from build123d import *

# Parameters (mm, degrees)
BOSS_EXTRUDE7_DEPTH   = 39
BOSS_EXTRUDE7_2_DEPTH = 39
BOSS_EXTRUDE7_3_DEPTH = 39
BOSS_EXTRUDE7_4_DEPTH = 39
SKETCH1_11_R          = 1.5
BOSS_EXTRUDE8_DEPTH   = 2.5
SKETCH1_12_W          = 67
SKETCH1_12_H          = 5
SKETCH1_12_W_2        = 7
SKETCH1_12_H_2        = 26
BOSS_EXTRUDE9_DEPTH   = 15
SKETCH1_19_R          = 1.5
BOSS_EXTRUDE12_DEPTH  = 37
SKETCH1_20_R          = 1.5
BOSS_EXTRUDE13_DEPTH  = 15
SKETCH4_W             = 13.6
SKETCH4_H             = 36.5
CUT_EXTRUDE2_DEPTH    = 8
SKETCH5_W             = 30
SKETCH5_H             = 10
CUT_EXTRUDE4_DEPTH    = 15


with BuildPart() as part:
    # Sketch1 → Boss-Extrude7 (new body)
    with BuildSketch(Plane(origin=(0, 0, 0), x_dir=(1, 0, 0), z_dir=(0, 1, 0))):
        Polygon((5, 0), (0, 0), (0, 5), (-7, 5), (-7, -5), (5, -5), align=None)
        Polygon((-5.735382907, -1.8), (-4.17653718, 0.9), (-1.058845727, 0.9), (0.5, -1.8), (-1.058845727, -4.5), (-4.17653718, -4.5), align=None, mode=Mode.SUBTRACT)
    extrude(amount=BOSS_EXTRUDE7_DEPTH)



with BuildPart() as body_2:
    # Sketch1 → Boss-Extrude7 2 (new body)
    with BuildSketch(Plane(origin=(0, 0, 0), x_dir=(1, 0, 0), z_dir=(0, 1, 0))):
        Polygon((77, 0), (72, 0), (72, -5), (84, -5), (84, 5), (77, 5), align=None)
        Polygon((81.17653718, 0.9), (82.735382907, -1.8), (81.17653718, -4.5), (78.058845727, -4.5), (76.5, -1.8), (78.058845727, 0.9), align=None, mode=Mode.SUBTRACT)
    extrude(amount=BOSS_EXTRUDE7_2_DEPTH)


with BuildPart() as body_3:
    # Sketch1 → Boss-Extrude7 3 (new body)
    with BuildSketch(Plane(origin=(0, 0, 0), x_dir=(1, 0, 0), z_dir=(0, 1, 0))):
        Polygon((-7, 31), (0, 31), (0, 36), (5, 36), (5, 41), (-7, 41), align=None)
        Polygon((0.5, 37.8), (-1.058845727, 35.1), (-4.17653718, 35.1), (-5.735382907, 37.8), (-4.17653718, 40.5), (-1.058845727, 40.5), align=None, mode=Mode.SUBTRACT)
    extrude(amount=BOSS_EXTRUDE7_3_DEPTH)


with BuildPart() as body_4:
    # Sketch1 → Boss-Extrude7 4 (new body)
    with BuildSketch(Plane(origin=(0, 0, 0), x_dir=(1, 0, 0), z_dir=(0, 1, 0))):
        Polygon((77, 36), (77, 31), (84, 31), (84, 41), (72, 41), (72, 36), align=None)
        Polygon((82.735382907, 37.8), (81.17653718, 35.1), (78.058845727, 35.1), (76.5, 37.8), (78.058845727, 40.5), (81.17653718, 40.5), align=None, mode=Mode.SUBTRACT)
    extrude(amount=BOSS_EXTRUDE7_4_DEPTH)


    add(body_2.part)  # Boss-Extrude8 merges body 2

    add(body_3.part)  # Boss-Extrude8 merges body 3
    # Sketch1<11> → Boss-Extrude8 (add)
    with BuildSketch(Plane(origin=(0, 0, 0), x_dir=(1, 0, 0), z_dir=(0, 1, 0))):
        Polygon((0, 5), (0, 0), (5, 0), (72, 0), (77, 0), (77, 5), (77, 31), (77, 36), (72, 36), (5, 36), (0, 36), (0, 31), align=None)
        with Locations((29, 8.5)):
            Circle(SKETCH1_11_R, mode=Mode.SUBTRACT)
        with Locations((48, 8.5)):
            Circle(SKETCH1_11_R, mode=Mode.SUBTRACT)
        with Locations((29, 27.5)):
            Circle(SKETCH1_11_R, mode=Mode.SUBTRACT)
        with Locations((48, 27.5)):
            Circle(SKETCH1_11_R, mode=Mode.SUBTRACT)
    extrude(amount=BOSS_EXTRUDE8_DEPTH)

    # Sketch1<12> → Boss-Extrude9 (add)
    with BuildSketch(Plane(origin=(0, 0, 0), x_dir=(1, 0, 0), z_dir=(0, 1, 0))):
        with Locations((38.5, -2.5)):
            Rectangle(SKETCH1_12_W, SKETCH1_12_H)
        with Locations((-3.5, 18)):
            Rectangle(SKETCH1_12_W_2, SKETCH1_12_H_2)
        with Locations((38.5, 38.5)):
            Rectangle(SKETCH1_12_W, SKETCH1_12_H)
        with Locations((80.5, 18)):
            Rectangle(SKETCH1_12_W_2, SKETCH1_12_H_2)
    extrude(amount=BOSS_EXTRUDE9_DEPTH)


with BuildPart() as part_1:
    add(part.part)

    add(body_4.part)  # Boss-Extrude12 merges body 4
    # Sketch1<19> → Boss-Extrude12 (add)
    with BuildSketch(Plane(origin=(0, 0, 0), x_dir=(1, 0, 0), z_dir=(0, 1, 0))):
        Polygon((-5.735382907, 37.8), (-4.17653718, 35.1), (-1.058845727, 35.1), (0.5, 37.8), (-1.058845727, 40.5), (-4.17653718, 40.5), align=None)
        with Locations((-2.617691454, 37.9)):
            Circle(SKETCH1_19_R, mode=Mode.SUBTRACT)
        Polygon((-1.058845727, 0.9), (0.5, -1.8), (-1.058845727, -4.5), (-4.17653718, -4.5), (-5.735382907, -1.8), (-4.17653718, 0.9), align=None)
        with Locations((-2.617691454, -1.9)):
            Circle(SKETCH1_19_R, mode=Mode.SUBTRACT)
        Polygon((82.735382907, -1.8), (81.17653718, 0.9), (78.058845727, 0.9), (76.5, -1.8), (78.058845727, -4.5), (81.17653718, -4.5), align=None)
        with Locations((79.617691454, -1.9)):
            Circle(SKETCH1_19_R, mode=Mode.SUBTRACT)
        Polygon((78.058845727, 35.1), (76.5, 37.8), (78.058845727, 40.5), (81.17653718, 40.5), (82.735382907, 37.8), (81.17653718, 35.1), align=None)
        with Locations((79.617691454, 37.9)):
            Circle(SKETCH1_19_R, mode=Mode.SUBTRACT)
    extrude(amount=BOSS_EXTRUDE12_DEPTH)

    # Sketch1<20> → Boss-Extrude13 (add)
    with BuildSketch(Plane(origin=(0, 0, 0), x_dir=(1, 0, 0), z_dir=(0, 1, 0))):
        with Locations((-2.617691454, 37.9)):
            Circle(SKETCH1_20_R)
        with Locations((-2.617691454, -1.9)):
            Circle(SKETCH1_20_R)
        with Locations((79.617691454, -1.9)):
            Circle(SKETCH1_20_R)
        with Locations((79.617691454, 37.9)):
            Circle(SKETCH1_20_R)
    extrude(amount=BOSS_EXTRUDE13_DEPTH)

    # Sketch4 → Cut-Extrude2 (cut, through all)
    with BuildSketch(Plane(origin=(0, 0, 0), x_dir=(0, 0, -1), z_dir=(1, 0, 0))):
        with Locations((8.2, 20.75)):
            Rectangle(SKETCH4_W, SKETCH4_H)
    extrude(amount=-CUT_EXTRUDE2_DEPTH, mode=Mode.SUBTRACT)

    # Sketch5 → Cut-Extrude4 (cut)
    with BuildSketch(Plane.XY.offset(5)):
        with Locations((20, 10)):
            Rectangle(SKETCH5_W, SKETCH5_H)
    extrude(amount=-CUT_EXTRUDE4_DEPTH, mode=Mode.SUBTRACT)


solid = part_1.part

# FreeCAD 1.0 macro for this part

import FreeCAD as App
import Part
import Sketcher
Q = App.Units.Quantity


def add_polygon(sketch, points):
    """Adds a closed chain of lines whose ends are joined by coincident constraints."""
    first, n = sketch.GeometryCount, len(points)
    for a, b in zip(points, points[1:] + points[:1]):
        sketch.addGeometry(Part.LineSegment(App.Vector(*a, 0), App.Vector(*b, 0)), False)
    for i in range(n):
        sketch.addConstraint(Sketcher.Constraint("Coincident", first + i, 2, first + (i + 1) % n, 1))

doc = App.newDocument("Part")
body = doc.addObject("PartDesign::Body", "Body")

sketch1 = doc.addObject("Sketcher::SketchObject", "Sketch")
body.addObject(sketch1)
sketch1.AttachmentSupport = (doc.XZ_Plane, [""])
sketch1.MapMode = "FlatFace"
add_polygon(sketch1, [(5, 0), (0, 0), (0, -5), (-7, -5), (-7, 5), (5, 5)])
add_polygon(sketch1, [(-4.2, 4.5), (-5.7, 1.8), (-4.2, -0.9), (-1.1, -0.9), (0.5, 1.8), (-1.1, 4.5)])
sketch1.addConstraint([
    Sketcher.Constraint("Horizontal", 0),
    Sketcher.Constraint("Vertical", 1),
    Sketcher.Constraint("Horizontal", 2),
    Sketcher.Constraint("Vertical", 3),
    Sketcher.Constraint("Horizontal", 4),
    Sketcher.Constraint("Vertical", 5),
    Sketcher.Constraint("Horizontal", 8),
    Sketcher.Constraint("Horizontal", 11),
    Sketcher.Constraint("Coincident", 0, 2, -1, 1),
    Sketcher.Constraint("Parallel", 6, 9),
    Sketcher.Constraint("Parallel", 7, 10),
    Sketcher.Constraint("Horizontal", 6, 2, 9, 2),
    Sketcher.Constraint("Vertical", 8, 2, 10, 2),
    Sketcher.Constraint("Vertical", 7, 2, 11, 2),
    Sketcher.Constraint("Equal", 0, 1),
    Sketcher.Constraint("Equal", 1, 5),
    Sketcher.Constraint("DistanceX", 0, 2, 0, 1, Q("5 mm")),
    Sketcher.Constraint("DistanceX", 2, 2, 2, 1, Q("7 mm")),
    Sketcher.Constraint("Angle", 6, Q("-120 deg")),
    Sketcher.Constraint("DistanceY", -1, 1, 6, 2, Q("1.8 mm")),
    Sketcher.Constraint("DistanceY", 7, 2, -1, 1, Q("0.9 mm")),
    Sketcher.Constraint("DistanceX", -1, 1, 9, 2, Q("0.5 mm")),
    Sketcher.Constraint("DistanceX", 8, 1, 8, 2, Q("3.117691 mm")),
])
pad1 = doc.addObject("PartDesign::Pad", "Pad")
body.addObject(pad1)
pad1.Profile = sketch1
pad1.Length = 39
pad1.Reversed = True
body2 = doc.addObject("PartDesign::Body", "Body001")

sketch2 = doc.addObject("Sketcher::SketchObject", "Sketch001")
body2.addObject(sketch2)
sketch2.AttachmentSupport = (doc.getObject("XZ_Plane001"), [""])
sketch2.MapMode = "FlatFace"
add_polygon(sketch2, [(77, 0), (72, 0), (72, 5), (84, 5), (84, -5), (77, -5)])
add_polygon(sketch2, [(78.1, -0.9), (81.2, -0.9), (82.7, 1.8), (81.2, 4.5), (78.1, 4.5), (76.5, 1.8)])
sketch2.addConstraint([
    Sketcher.Constraint("Horizontal", 0),
    Sketcher.Constraint("Vertical", 1),
    Sketcher.Constraint("Horizontal", 2),
    Sketcher.Constraint("Vertical", 3),
    Sketcher.Constraint("Horizontal", 4),
    Sketcher.Constraint("Vertical", 5),
    Sketcher.Constraint("Horizontal", 6),
    Sketcher.Constraint("Horizontal", 9),
    Sketcher.Constraint("PointOnObject", 0, 2, -1),
    Sketcher.Constraint("Parallel", 7, 10),
    Sketcher.Constraint("Parallel", 8, 11),
    Sketcher.Constraint("Horizontal", 7, 2, 10, 2),
    Sketcher.Constraint("Vertical", 6, 2, 8, 2),
    Sketcher.Constraint("Vertical", 9, 2, 11, 2),
    Sketcher.Constraint("Equal", 0, 1),
    Sketcher.Constraint("Equal", 1, 5),
    Sketcher.Constraint("DistanceX", 0, 2, 0, 1, Q("5 mm")),
    Sketcher.Constraint("DistanceX", 2, 1, 2, 2, Q("12 mm")),
    Sketcher.Constraint("Angle", 7, Q("60 deg")),
    Sketcher.Constraint("DistanceX", -1, 1, 0, 2, Q("72 mm")),
    Sketcher.Constraint("DistanceY", 6, 2, -1, 1, Q("0.9 mm")),
    Sketcher.Constraint("DistanceY", -1, 1, 7, 2, Q("1.8 mm")),
    Sketcher.Constraint("DistanceX", -1, 1, 10, 2, Q("76.5 mm")),
    Sketcher.Constraint("DistanceX", 6, 1, 6, 2, Q("3.117691 mm")),
])
pad2 = doc.addObject("PartDesign::Pad", "Pad001")
body2.addObject(pad2)
pad2.Profile = sketch2
pad2.Length = 39
pad2.Reversed = True
body3 = doc.addObject("PartDesign::Body", "Body002")

sketch3 = doc.addObject("Sketcher::SketchObject", "Sketch002")
body3.addObject(sketch3)
sketch3.AttachmentSupport = (doc.getObject("XZ_Plane002"), [""])
sketch3.MapMode = "FlatFace"
add_polygon(sketch3, [(-7, -31), (0, -31), (0, -36), (5, -36), (5, -41), (-7, -41)])
add_polygon(sketch3, [(-1.1, -40.5), (0.5, -37.8), (-1.1, -35.1), (-4.2, -35.1), (-5.7, -37.8), (-4.2, -40.5)])
sketch3.addConstraint([
    Sketcher.Constraint("Horizontal", 0),
    Sketcher.Constraint("Vertical", 1),
    Sketcher.Constraint("Horizontal", 2),
    Sketcher.Constraint("Vertical", 3),
    Sketcher.Constraint("Horizontal", 4),
    Sketcher.Constraint("Vertical", 5),
    Sketcher.Constraint("Horizontal", 8),
    Sketcher.Constraint("Horizontal", 11),
    Sketcher.Constraint("PointOnObject", 0, 2, -2),
    Sketcher.Constraint("Parallel", 6, 9),
    Sketcher.Constraint("Parallel", 7, 10),
    Sketcher.Constraint("Horizontal", 6, 2, 9, 2),
    Sketcher.Constraint("Vertical", 8, 2, 10, 2),
    Sketcher.Constraint("Vertical", 7, 2, 11, 2),
    Sketcher.Constraint("Equal", 2, 1),
    Sketcher.Constraint("Equal", 1, 3),
    Sketcher.Constraint("DistanceX", 0, 1, 0, 2, Q("7 mm")),
    Sketcher.Constraint("DistanceX", 2, 1, 2, 2, Q("5 mm")),
    Sketcher.Constraint("Angle", 6, Q("60 deg")),
    Sketcher.Constraint("DistanceY", 0, 2, -1, 1, Q("31 mm")),
    Sketcher.Constraint("DistanceX", -1, 1, 6, 2, Q("0.5 mm")),
    Sketcher.Constraint("DistanceY", 6, 2, -1, 1, Q("37.8 mm")),
    Sketcher.Constraint("DistanceY", 7, 2, -1, 1, Q("35.1 mm")),
    Sketcher.Constraint("DistanceX", 8, 2, 8, 1, Q("3.117691 mm")),
])
pad3 = doc.addObject("PartDesign::Pad", "Pad002")
body3.addObject(pad3)
pad3.Profile = sketch3
pad3.Length = 39
pad3.Reversed = True
body4 = doc.addObject("PartDesign::Body", "Body003")
body4.AllowCompound = True

sketch4 = doc.addObject("Sketcher::SketchObject", "Sketch003")
body4.addObject(sketch4)
sketch4.AttachmentSupport = (doc.getObject("XZ_Plane003"), [""])
sketch4.MapMode = "FlatFace"
add_polygon(sketch4, [(77, -36), (77, -31), (84, -31), (84, -41), (72, -41), (72, -36)])
add_polygon(sketch4, [(81.2, -40.5), (82.7, -37.8), (81.2, -35.1), (78.1, -35.1), (76.5, -37.8), (78.1, -40.5)])
sketch4.addConstraint([
    Sketcher.Constraint("Vertical", 0),
    Sketcher.Constraint("Horizontal", 1),
    Sketcher.Constraint("Vertical", 2),
    Sketcher.Constraint("Horizontal", 3),
    Sketcher.Constraint("Vertical", 4),
    Sketcher.Constraint("Horizontal", 5),
    Sketcher.Constraint("Horizontal", 8),
    Sketcher.Constraint("Horizontal", 11),
    Sketcher.Constraint("Parallel", 6, 9),
    Sketcher.Constraint("Parallel", 7, 10),
    Sketcher.Constraint("Horizontal", 6, 2, 9, 2),
    Sketcher.Constraint("Vertical", 8, 2, 10, 2),
    Sketcher.Constraint("Vertical", 7, 2, 11, 2),
    Sketcher.Constraint("Equal", 5, 0),
    Sketcher.Constraint("Equal", 0, 4),
    Sketcher.Constraint("DistanceX", 1, 1, 1, 2, Q("7 mm")),
    Sketcher.Constraint("DistanceX", 3, 2, 3, 1, Q("12 mm")),
    Sketcher.Constraint("Angle", 6, Q("60 deg")),
    Sketcher.Constraint("DistanceX", -1, 1, 0, 2, Q("77 mm")),
    Sketcher.Constraint("DistanceY", 0, 2, -1, 1, Q("31 mm")),
    Sketcher.Constraint("DistanceY", 6, 2, -1, 1, Q("37.8 mm")),
    Sketcher.Constraint("DistanceY", 7, 2, -1, 1, Q("35.1 mm")),
    Sketcher.Constraint("DistanceX", -1, 1, 9, 2, Q("76.5 mm")),
    Sketcher.Constraint("DistanceX", 8, 2, 8, 1, Q("3.117691 mm")),
])
pad4 = doc.addObject("PartDesign::Pad", "Pad003")
body4.addObject(pad4)
pad4.Profile = sketch4
pad4.Length = 39
pad4.Reversed = True
doc.recompute()

boolean = doc.addObject("PartDesign::Boolean", "Boolean")
body4.addObject(boolean)
boolean.Type = "Fuse"
boolean.addObjects([body2])
doc.recompute()

boolean2 = doc.addObject("PartDesign::Boolean", "Boolean001")
body4.addObject(boolean2)
boolean2.Type = "Fuse"
boolean2.addObjects([body3])

sketch5 = doc.addObject("Sketcher::SketchObject", "Sketch004")
body4.addObject(sketch5)
sketch5.AttachmentSupport = (doc.getObject("XZ_Plane003"), [""])
sketch5.MapMode = "FlatFace"
add_polygon(sketch5, [(0, 0), (77, 0), (77, -36), (0, -36)])
sketch5.addGeometry(Part.Circle(App.Vector(29, -8.5, 0), App.Vector(0, 0, 1), 1.5), False)
sketch5.addGeometry(Part.Circle(App.Vector(48, -8.5, 0), App.Vector(0, 0, 1), 1.5), False)
sketch5.addGeometry(Part.Circle(App.Vector(29, -27.5, 0), App.Vector(0, 0, 1), 1.5), False)
sketch5.addGeometry(Part.Circle(App.Vector(48, -27.5, 0), App.Vector(0, 0, 1), 1.5), False)
sketch5.addConstraint([
    Sketcher.Constraint("Horizontal", 0),
    Sketcher.Constraint("Vertical", 1),
    Sketcher.Constraint("Horizontal", 2),
    Sketcher.Constraint("Vertical", 3),
    Sketcher.Constraint("Coincident", 3, 2, -1, 1),
    Sketcher.Constraint("Equal", 4, 5),
    Sketcher.Constraint("Equal", 5, 6),
    Sketcher.Constraint("Equal", 6, 7),
    Sketcher.Constraint("Horizontal", 4, 3, 5, 3),
    Sketcher.Constraint("Horizontal", 6, 3, 7, 3),
    Sketcher.Constraint("Vertical", 4, 3, 6, 3),
    Sketcher.Constraint("Vertical", 5, 3, 7, 3),
    Sketcher.Constraint("Diameter", 4, Q("3 mm")),
    Sketcher.Constraint("DistanceX", 0, 1, 0, 2, Q("77 mm")),
    Sketcher.Constraint("DistanceY", 1, 2, 1, 1, Q("36 mm")),
    Sketcher.Constraint("DistanceX", -1, 1, 4, 3, Q("29 mm")),
    Sketcher.Constraint("DistanceX", -1, 1, 5, 3, Q("48 mm")),
    Sketcher.Constraint("DistanceY", 6, 3, 4, 3, Q("19 mm")),
    Sketcher.Constraint("DistanceY", 4, 3, -1, 1, Q("8.5 mm")),
])
pad5 = doc.addObject("PartDesign::Pad", "Pad004")
body4.addObject(pad5)
pad5.Profile = sketch5
pad5.Length = 2.5
pad5.Reversed = True

sketch6 = doc.addObject("Sketcher::SketchObject", "Sketch005")
body4.addObject(sketch6)
sketch6.AttachmentSupport = (doc.getObject("XZ_Plane003"), [""])
sketch6.MapMode = "FlatFace"
add_polygon(sketch6, [(5, 0), (5, 5), (72, 5), (72, 0)])
add_polygon(sketch6, [(-7, -31), (-7, -5), (0, -5), (0, -31)])
add_polygon(sketch6, [(5, -41), (5, -36), (72, -36), (72, -41)])
add_polygon(sketch6, [(77, -31), (77, -5), (84, -5), (84, -31)])
sketch6.addConstraint([
    Sketcher.Constraint("Vertical", 0),
    Sketcher.Constraint("Horizontal", 1),
    Sketcher.Constraint("Vertical", 2),
    Sketcher.Constraint("Horizontal", 3),
    Sketcher.Constraint("Vertical", 4),
    Sketcher.Constraint("Horizontal", 5),
    Sketcher.Constraint("Vertical", 6),
    Sketcher.Constraint("Horizontal", 7),
    Sketcher.Constraint("Vertical", 8),
    Sketcher.Constraint("Horizontal", 9),
    Sketcher.Constraint("Vertical", 10),
    Sketcher.Constraint("Horizontal", 11),
    Sketcher.Constraint("Vertical", 12),
    Sketcher.Constraint("Horizontal", 13),
    Sketcher.Constraint("Vertical", 14),
    Sketcher.Constraint("Horizontal", 15),
    Sketcher.Constraint("PointOnObject", 2, 2, -1),
    Sketcher.Constraint("PointOnObject", 5, 2, -2),
    Sketcher.Constraint("Horizontal", 5, 2, 12, 2),
    Sketcher.Constraint("Horizontal", 7, 2, 14, 2),
    Sketcher.Constraint("Vertical", 3, 2, 8, 2),
    Sketcher.Constraint("Vertical", 2, 2, 9, 2),
    Sketcher.Constraint("Equal", 7, 13),
    Sketcher.Constraint("Equal", 2, 8),
    Sketcher.Constraint("DistanceX", 1, 1, 1, 2, Q("67 mm")),
    Sketcher.Constraint("DistanceX", 5, 1, 5, 2, Q("7 mm")),
    Sketcher.Constraint("DistanceY", 0, 1, 0, 2, Q("5 mm")),
    Sketcher.Constraint("DistanceY", 4, 1, 4, 2, Q("26 mm")),
    Sketcher.Constraint("DistanceX", -1, 1, 0, 2, Q("5 mm")),
    Sketcher.Constraint("DistanceY", 4, 2, -1, 1, Q("5 mm")),
    Sketcher.Constraint("DistanceY", 8, 2, -1, 1, Q("36 mm")),
    Sketcher.Constraint("DistanceX", -1, 1, 12, 2, Q("77 mm")),
])
pad6 = doc.addObject("PartDesign::Pad", "Pad005")
body4.addObject(pad6)
pad6.Profile = sketch6
pad6.Length = 15
pad6.Reversed = True
doc.recompute()

boolean3 = doc.addObject("PartDesign::Boolean", "Boolean002")
body.addObject(boolean3)
boolean3.Type = "Fuse"
boolean3.addObjects([body4])

sketch7 = doc.addObject("Sketcher::SketchObject", "Sketch006")
body.addObject(sketch7)
sketch7.AttachmentSupport = (doc.XZ_Plane, [""])
sketch7.MapMode = "FlatFace"
add_polygon(sketch7, [(-5.7, -37.8), (-4.2, -35.1), (-1.1, -35.1), (0.5, -37.8), (-1.1, -40.5), (-4.2, -40.5)])
sketch7.addGeometry(Part.Circle(App.Vector(-2.6, -37.9, 0), App.Vector(0, 0, 1), 1.5), False)
add_polygon(sketch7, [(0.5, 1.8), (-1.1, -0.9), (-4.2, -0.9), (-5.7, 1.8), (-4.2, 4.5), (-1.1, 4.5)])
sketch7.addGeometry(Part.Circle(App.Vector(-2.6, 1.9, 0), App.Vector(0, 0, 1), 1.5), False)
add_polygon(sketch7, [(82.7, 1.8), (81.2, -0.9), (78.1, -0.9), (76.5, 1.8), (78.1, 4.5), (81.2, 4.5)])
sketch7.addGeometry(Part.Circle(App.Vector(79.6, 1.9, 0), App.Vector(0, 0, 1), 1.5), False)
add_polygon(sketch7, [(76.5, -37.8), (78.1, -35.1), (81.2, -35.1), (82.7, -37.8), (81.2, -40.5), (78.1, -40.5)])
sketch7.addGeometry(Part.Circle(App.Vector(79.6, -37.9, 0), App.Vector(0, 0, 1), 1.5), False)
sketch7.addConstraint([
    Sketcher.Constraint("Horizontal", 1),
    Sketcher.Constraint("Horizontal", 4),
    Sketcher.Constraint("Horizontal", 8),
    Sketcher.Constraint("Horizontal", 11),
    Sketcher.Constraint("Horizontal", 15),
    Sketcher.Constraint("Horizontal", 18),
    Sketcher.Constraint("Horizontal", 22),
    Sketcher.Constraint("Horizontal", 25),
    Sketcher.Constraint("Equal", 6, 13),
    Sketcher.Constraint("Equal", 13, 20),
    Sketcher.Constraint("Equal", 20, 27),
    Sketcher.Constraint("Parallel", 0, 3),
    Sketcher.Constraint("Parallel", 2, 5),
    Sketcher.Constraint("Parallel", 3, 7),
    Sketcher.Constraint("Parallel", 5, 9),
    Sketcher.Constraint("Parallel", 7, 10),
    Sketcher.Constraint("Parallel", 9, 12),
    Sketcher.Constraint("Parallel", 10, 14),
    Sketcher.Constraint("Parallel", 12, 16),
    Sketcher.Constraint("Parallel", 14, 17),
    Sketcher.Constraint("Parallel", 16, 19),
    Sketcher.Constraint("Parallel", 17, 21),
    Sketcher.Constraint("Parallel", 19, 23),
    Sketcher.Constraint("Parallel", 21, 24),
    Sketcher.Constraint("Parallel", 23, 26),
    Sketcher.Constraint("Horizontal", 13, 3, 20, 3),
    Sketcher.Constraint("Horizontal", 6, 3, 27, 3),
    Sketcher.Constraint("Horizontal", 2, 2, 5, 2),
    Sketcher.Constraint("Horizontal", 9, 2, 12, 2),
    Sketcher.Constraint("Horizontal", 8, 2, 14, 2),
    Sketcher.Constraint("Horizontal", 12, 2, 16, 2),
    Sketcher.Constraint("Horizontal", 11, 2, 17, 2),
    Sketcher.Constraint("Horizontal", 16, 2, 19, 2),
    Sketcher.Constraint("Horizontal", 1, 2, 21, 2),
    Sketcher.Constraint("Horizontal", 5, 2, 23, 2),
    Sketcher.Constraint("Horizontal", 4, 2, 24, 2),
    Sketcher.Constraint("Horizontal", 23, 2, 26, 2),
    Sketcher.Constraint("Vertical", 6, 3, 13, 3),
    Sketcher.Constraint("Vertical", 20, 3, 27, 3),
    Sketcher.Constraint("Vertical", 1, 2, 3, 2),
    Sketcher.Constraint("Vertical", 0, 2, 4, 2),
    Sketcher.Constraint("Vertical", 3, 2, 7, 2),
    Sketcher.Constraint("Vertical", 4, 2, 8, 2),
    Sketcher.Constraint("Vertical", 5, 2, 9, 2),
    Sketcher.Constraint("Vertical", 8, 2, 10, 2),
    Sketcher.Constraint("Vertical", 17, 2, 21, 2),
    Sketcher.Constraint("Vertical", 18, 2, 22, 2),
    Sketcher.Constraint("Equal", 11, 15),
    Sketcher.Constraint("Diameter", 6, Q("3 mm")),
    Sketcher.Constraint("Angle", 0, Q("60 deg")),
    Sketcher.Constraint("DistanceY", 0, 2, 13, 3, Q("37 mm")),
    Sketcher.Constraint("DistanceY", 6, 3, 7, 2, Q("37 mm")),
    Sketcher.Constraint("DistanceX", 12, 2, 16, 2, Q("76 mm")),
    Sketcher.Constraint("DistanceY", 6, 3, -1, 1, Q("37.9 mm")),
    Sketcher.Constraint("DistanceY", -1, 1, 13, 3, Q("1.9 mm")),
    Sketcher.Constraint("DistanceX", -1, 1, 2, 2, Q("0.5 mm")),
    Sketcher.Constraint("DistanceY", 2, 2, -1, 1, Q("37.8 mm")),
    Sketcher.Constraint("DistanceX", 1, 1, 1, 2, Q("3.117691 mm")),
    Sketcher.Constraint("DistanceX", 6, 3, -1, 1, Q("2.617691 mm")),
    Sketcher.Constraint("DistanceX", -1, 1, 20, 3, Q("79.617691 mm")),
])
pad7 = doc.addObject("PartDesign::Pad", "Pad006")
body.addObject(pad7)
pad7.Profile = sketch7
pad7.Length = 37
pad7.Reversed = True

sketch8 = doc.addObject("Sketcher::SketchObject", "Sketch007")
body.addObject(sketch8)
sketch8.AttachmentSupport = (doc.XZ_Plane, [""])
sketch8.MapMode = "FlatFace"
sketch8.addGeometry([
    Part.Circle(App.Vector(-2.6, -37.9, 0), App.Vector(0, 0, 1), 1.5),
    Part.Circle(App.Vector(-2.6, 1.9, 0), App.Vector(0, 0, 1), 1.5),
    Part.Circle(App.Vector(79.6, 1.9, 0), App.Vector(0, 0, 1), 1.5),
    Part.Circle(App.Vector(79.6, -37.9, 0), App.Vector(0, 0, 1), 1.5),
], False)
sketch8.addConstraint([
    Sketcher.Constraint("Equal", 0, 1),
    Sketcher.Constraint("Equal", 1, 2),
    Sketcher.Constraint("Equal", 2, 3),
    Sketcher.Constraint("Horizontal", 1, 3, 2, 3),
    Sketcher.Constraint("Horizontal", 0, 3, 3, 3),
    Sketcher.Constraint("Vertical", 0, 3, 1, 3),
    Sketcher.Constraint("Vertical", 2, 3, 3, 3),
    Sketcher.Constraint("Diameter", 0, Q("3 mm")),
    Sketcher.Constraint("DistanceY", 0, 3, -1, 1, Q("37.9 mm")),
    Sketcher.Constraint("DistanceY", -1, 1, 1, 3, Q("1.9 mm")),
    Sketcher.Constraint("DistanceX", 0, 3, -1, 1, Q("2.617691 mm")),
    Sketcher.Constraint("DistanceX", -1, 1, 2, 3, Q("79.617691 mm")),
])
pad8 = doc.addObject("PartDesign::Pad", "Pad007")
body.addObject(pad8)
pad8.Profile = sketch8
pad8.Length = 15
pad8.Reversed = True

sketch9 = doc.addObject("Sketcher::SketchObject", "Sketch008")
body.addObject(sketch9)
sketch9.AttachmentSupport = (doc.YZ_Plane, [""])
sketch9.MapMode = "FlatFace"
add_polygon(sketch9, [(39, -1), (2, -1), (2, -15), (39, -15)])
sketch9.addConstraint([
    Sketcher.Constraint("Horizontal", 0),
    Sketcher.Constraint("Vertical", 1),
    Sketcher.Constraint("Horizontal", 2),
    Sketcher.Constraint("Vertical", 3),
    Sketcher.Constraint("DistanceX", 0, 2, 0, 1, Q("36.5 mm")),
    Sketcher.Constraint("DistanceY", 1, 2, 1, 1, Q("13.6 mm")),
    Sketcher.Constraint("DistanceY", 1, 2, -1, 1, Q("15 mm")),
    Sketcher.Constraint("DistanceX", -1, 1, 2, 2, Q("39 mm")),
])
pocket1 = doc.addObject("PartDesign::Pocket", "Pocket")
body.addObject(pocket1)
pocket1.Profile = sketch9
pocket1.Type = "ThroughAll"

sketch10 = doc.addObject("Sketcher::SketchObject", "Sketch009")
body.addObject(sketch10)
sketch10.AttachmentSupport = (doc.XY_Plane, [""])
sketch10.MapMode = "FlatFace"
sketch10.AttachmentOffset = App.Placement(App.Vector(0, 0, 5), App.Rotation())
add_polygon(sketch10, [(5, 15), (5, 5), (35, 5), (35, 15)])
sketch10.addConstraint([
    Sketcher.Constraint("Vertical", 0),
    Sketcher.Constraint("Horizontal", 1),
    Sketcher.Constraint("Vertical", 2),
    Sketcher.Constraint("Horizontal", 3),
    Sketcher.Constraint("DistanceX", 1, 1, 1, 2, Q("30 mm")),
    Sketcher.Constraint("DistanceY", 0, 2, 0, 1, Q("10 mm")),
    Sketcher.Constraint("DistanceX", -1, 1, 0, 2, Q("5 mm")),
    Sketcher.Constraint("DistanceY", -1, 1, 0, 2, Q("5 mm")),
])
pocket2 = doc.addObject("PartDesign::Pocket", "Pocket001")
body.addObject(pocket2)
pocket2.Profile = sketch10
pocket2.Length = 15

doc.recompute()
